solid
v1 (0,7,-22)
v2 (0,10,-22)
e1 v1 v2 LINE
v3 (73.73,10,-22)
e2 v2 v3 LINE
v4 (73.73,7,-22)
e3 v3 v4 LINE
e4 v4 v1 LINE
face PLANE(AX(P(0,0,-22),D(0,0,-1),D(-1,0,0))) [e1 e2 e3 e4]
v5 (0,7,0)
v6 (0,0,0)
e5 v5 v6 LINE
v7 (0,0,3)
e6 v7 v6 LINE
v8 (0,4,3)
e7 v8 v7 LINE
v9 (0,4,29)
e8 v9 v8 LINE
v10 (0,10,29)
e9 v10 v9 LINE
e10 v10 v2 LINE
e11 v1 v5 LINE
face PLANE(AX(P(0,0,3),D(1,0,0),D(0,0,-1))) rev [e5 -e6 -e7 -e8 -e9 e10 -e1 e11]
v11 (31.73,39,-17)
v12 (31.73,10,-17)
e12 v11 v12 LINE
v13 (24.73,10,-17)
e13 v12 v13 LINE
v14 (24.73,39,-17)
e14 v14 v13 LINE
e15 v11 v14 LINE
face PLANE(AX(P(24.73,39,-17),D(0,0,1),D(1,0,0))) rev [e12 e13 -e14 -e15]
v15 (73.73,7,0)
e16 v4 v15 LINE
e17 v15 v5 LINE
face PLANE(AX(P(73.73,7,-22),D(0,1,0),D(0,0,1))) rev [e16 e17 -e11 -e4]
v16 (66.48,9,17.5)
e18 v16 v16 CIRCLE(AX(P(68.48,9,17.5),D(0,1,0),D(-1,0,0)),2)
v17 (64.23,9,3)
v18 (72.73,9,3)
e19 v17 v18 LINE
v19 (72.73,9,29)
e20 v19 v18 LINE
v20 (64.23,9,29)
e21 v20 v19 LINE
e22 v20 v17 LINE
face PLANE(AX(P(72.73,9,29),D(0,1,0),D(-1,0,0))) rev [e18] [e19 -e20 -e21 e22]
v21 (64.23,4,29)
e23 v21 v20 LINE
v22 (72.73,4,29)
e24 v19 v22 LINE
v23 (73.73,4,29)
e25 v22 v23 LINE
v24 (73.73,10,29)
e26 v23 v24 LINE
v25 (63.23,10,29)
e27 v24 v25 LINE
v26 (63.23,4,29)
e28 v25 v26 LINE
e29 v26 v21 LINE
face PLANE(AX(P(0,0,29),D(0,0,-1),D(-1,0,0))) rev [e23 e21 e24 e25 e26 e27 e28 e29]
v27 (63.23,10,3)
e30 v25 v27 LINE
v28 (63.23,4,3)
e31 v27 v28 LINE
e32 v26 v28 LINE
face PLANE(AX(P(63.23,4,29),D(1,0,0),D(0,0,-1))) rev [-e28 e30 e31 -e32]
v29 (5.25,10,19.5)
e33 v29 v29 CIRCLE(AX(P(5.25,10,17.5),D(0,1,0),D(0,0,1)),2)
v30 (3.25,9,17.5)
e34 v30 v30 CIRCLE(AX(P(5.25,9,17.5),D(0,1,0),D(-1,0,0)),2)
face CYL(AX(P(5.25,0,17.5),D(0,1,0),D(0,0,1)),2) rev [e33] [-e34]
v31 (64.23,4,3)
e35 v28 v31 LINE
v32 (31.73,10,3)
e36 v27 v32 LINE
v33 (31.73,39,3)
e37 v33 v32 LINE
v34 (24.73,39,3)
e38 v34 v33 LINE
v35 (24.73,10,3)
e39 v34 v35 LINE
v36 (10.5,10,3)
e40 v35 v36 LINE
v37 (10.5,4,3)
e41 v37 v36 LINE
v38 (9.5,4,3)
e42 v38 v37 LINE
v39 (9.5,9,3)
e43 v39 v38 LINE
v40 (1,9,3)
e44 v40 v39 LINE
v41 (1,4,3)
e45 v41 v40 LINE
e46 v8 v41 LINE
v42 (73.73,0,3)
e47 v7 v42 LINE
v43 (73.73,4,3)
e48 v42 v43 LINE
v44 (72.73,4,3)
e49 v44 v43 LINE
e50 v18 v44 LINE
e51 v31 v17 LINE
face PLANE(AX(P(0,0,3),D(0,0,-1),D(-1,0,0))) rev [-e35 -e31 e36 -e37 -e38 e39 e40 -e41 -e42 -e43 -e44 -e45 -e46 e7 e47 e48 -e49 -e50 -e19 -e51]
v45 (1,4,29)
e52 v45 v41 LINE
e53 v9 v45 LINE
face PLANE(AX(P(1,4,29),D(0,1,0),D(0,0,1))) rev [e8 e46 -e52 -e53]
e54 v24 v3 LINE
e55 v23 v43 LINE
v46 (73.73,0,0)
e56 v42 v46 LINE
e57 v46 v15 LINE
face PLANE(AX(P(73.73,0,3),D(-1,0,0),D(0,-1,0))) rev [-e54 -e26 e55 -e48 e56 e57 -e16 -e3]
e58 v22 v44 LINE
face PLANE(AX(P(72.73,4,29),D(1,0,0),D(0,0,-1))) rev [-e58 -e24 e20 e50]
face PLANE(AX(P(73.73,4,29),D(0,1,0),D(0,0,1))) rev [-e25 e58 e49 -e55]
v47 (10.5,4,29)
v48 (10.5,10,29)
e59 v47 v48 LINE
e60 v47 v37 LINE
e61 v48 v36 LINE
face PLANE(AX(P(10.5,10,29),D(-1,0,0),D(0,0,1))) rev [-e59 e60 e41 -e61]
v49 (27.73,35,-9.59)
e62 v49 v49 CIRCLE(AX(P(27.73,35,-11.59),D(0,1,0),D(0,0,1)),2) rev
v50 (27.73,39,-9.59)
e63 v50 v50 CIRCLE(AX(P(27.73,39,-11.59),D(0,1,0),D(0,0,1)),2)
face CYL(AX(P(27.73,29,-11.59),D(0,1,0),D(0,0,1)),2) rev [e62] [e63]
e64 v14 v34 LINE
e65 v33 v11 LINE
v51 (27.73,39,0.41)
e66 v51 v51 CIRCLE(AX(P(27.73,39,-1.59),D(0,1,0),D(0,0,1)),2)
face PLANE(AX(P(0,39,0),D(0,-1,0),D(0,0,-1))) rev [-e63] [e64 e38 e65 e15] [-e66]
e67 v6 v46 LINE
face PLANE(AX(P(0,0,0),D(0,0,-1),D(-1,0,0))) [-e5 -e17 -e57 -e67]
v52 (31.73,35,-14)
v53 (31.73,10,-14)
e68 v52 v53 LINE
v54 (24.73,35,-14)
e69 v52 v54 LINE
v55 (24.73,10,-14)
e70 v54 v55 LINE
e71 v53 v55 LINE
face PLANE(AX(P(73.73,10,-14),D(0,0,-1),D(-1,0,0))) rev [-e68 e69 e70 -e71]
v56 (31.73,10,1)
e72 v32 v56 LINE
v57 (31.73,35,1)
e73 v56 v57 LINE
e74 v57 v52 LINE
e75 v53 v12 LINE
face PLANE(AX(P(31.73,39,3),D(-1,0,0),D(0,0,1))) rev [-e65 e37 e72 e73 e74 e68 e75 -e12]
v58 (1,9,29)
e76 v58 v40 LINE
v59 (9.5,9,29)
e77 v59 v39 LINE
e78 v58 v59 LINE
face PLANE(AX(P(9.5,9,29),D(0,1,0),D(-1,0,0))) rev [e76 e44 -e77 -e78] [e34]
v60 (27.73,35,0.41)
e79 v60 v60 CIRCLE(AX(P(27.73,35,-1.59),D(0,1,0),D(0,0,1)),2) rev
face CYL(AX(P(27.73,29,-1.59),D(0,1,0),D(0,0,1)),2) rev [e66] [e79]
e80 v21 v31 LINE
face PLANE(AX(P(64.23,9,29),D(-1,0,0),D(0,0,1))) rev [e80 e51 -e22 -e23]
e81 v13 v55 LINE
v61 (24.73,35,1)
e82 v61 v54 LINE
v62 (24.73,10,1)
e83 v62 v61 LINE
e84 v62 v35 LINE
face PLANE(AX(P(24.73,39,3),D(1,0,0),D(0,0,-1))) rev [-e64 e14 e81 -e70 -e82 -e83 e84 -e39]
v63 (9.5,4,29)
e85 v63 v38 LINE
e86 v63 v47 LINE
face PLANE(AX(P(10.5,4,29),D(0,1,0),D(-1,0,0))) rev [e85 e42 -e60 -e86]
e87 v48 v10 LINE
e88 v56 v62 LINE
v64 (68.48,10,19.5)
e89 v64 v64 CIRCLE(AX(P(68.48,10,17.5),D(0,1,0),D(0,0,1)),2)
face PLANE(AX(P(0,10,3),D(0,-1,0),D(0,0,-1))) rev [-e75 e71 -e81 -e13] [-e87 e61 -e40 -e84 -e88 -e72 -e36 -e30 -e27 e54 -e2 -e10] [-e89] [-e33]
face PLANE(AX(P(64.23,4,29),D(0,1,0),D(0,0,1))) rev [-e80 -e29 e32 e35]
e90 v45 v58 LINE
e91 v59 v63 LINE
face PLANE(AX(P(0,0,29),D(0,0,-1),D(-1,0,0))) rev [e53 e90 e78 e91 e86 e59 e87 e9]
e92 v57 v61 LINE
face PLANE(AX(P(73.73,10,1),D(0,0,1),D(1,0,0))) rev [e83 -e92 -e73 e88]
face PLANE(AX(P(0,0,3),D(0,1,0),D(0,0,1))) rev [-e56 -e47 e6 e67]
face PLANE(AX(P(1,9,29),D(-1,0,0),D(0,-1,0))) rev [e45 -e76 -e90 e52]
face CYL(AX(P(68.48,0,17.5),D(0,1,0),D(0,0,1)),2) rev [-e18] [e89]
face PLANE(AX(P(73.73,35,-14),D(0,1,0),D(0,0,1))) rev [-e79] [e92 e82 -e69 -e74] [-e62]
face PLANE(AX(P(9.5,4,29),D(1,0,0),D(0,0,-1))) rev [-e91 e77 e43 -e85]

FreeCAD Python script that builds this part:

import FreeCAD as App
import Part
import Sketcher
Q = App.Units.Quantity

doc = App.newDocument("Part")
body = doc.addObject("PartDesign::Body", "Body")

# Sketch on XY plane
sketch1 = body.newObject("Sketcher::SketchObject", "Sketch")
sketch1.AttachmentSupport = (doc.getObject("XY_Plane"), [""])
sketch1.MapMode = "FlatFace"
sketch1.addGeometry(Part.LineSegment(App.Vector(0, 10, 0), App.Vector(0, 0, 0)), False)
sketch1.addGeometry(Part.LineSegment(App.Vector(0, 0, 0), App.Vector(74, 0, 0)), False)
sketch1.addGeometry(Part.LineSegment(App.Vector(74, 0, 0), App.Vector(74, 10, 0)), False)
sketch1.addGeometry(Part.LineSegment(App.Vector(74, 10, 0), App.Vector(0, 10, 0)), False)
sketch1.addConstraint(Sketcher.Constraint("Coincident", 0, 2, 1, 1))
sketch1.addConstraint(Sketcher.Constraint("Coincident", 1, 2, 2, 1))
sketch1.addConstraint(Sketcher.Constraint("Coincident", 2, 2, 3, 1))
sketch1.addConstraint(Sketcher.Constraint("Coincident", 3, 2, 0, 1))
sketch1.addConstraint(Sketcher.Constraint("Vertical", 0))
sketch1.addConstraint(Sketcher.Constraint("Horizontal", 1))
sketch1.addConstraint(Sketcher.Constraint("Vertical", 2))
sketch1.addConstraint(Sketcher.Constraint("Horizontal", 3))
sketch1.addConstraint(Sketcher.Constraint("Coincident", 0, 2, -1, 1))
sketch1.addConstraint(Sketcher.Constraint("DistanceY", 0, 2, 0, 1, Q("10 mm")))
sketch1.addConstraint(Sketcher.Constraint("DistanceX", 1, 1, 1, 2, Q("73.73 mm")))
pad1 = body.newObject("PartDesign::Pad", "Pad")
pad1.Profile = sketch1
pad1.Length = 3

# Sketch on XY plane
sketch2 = body.newObject("Sketcher::SketchObject", "Sketch001")
sketch2.AttachmentSupport = (doc.getObject("XY_Plane"), [""])
sketch2.MapMode = "FlatFace"
sketch2.AttachmentOffset = App.Placement(App.Vector(0, 0, 3), App.Rotation())
sketch2.addGeometry(Part.LineSegment(App.Vector(0, 10, 0), App.Vector(0, 4, 0)), False)
sketch2.addGeometry(Part.LineSegment(App.Vector(0, 4, 0), App.Vector(1, 4, 0)), False)
sketch2.addGeometry(Part.LineSegment(App.Vector(1, 4, 0), App.Vector(1, 9, 0)), False)
sketch2.addGeometry(Part.LineSegment(App.Vector(1, 9, 0), App.Vector(9.5, 9, 0)), False)
sketch2.addGeometry(Part.LineSegment(App.Vector(9.5, 9, 0), App.Vector(9.5, 4, 0)), False)
sketch2.addGeometry(Part.LineSegment(App.Vector(9.5, 4, 0), App.Vector(10.5, 4, 0)), False)
sketch2.addGeometry(Part.LineSegment(App.Vector(10.5, 4, 0), App.Vector(10.5, 10, 0)), False)
sketch2.addGeometry(Part.LineSegment(App.Vector(10.5, 10, 0), App.Vector(0, 10, 0)), False)
sketch2.addConstraint(Sketcher.Constraint("Coincident", 0, 2, 1, 1))
sketch2.addConstraint(Sketcher.Constraint("Coincident", 1, 2, 2, 1))
sketch2.addConstraint(Sketcher.Constraint("Coincident", 2, 2, 3, 1))
sketch2.addConstraint(Sketcher.Constraint("Coincident", 3, 2, 4, 1))
sketch2.addConstraint(Sketcher.Constraint("Coincident", 4, 2, 5, 1))
sketch2.addConstraint(Sketcher.Constraint("Coincident", 5, 2, 6, 1))
sketch2.addConstraint(Sketcher.Constraint("Coincident", 6, 2, 7, 1))
sketch2.addConstraint(Sketcher.Constraint("Coincident", 7, 2, 0, 1))
sketch2.addConstraint(Sketcher.Constraint("Vertical", 0))
sketch2.addConstraint(Sketcher.Constraint("Horizontal", 1))
sketch2.addConstraint(Sketcher.Constraint("Vertical", 2))
sketch2.addConstraint(Sketcher.Constraint("Horizontal", 3))
sketch2.addConstraint(Sketcher.Constraint("Vertical", 4))
sketch2.addConstraint(Sketcher.Constraint("Horizontal", 5))
sketch2.addConstraint(Sketcher.Constraint("Vertical", 6))
sketch2.addConstraint(Sketcher.Constraint("Horizontal", 7))
sketch2.addConstraint(Sketcher.Constraint("PointOnObject", 0, 2, -2))
sketch2.addConstraint(Sketcher.Constraint("Horizontal", 1, 2, 4, 2))
sketch2.addConstraint(Sketcher.Constraint("Equal", 1, 5))
sketch2.addConstraint(Sketcher.Constraint("DistanceX", 1, 1, 1, 2, Q("1 mm")))
sketch2.addConstraint(Sketcher.Constraint("DistanceY", 0, 2, 0, 1, Q("6 mm")))
sketch2.addConstraint(Sketcher.Constraint("DistanceY", 2, 1, 2, 2, Q("5 mm")))
sketch2.addConstraint(Sketcher.Constraint("DistanceX", 3, 1, 3, 2, Q("8.5 mm")))
sketch2.addConstraint(Sketcher.Constraint("DistanceY", -1, 1, 0, 2, Q("4 mm")))
pad2 = body.newObject("PartDesign::Pad", "Pad001")
pad2.Profile = sketch2
pad2.Length = 26

# Sketch on XY plane
sketch3 = body.newObject("Sketcher::SketchObject", "Sketch002")
sketch3.AttachmentSupport = (doc.getObject("XY_Plane"), [""])
sketch3.MapMode = "FlatFace"
sketch3.AttachmentOffset = App.Placement(App.Vector(0, 0, 3), App.Rotation())
sketch3.addGeometry(Part.LineSegment(App.Vector(73.7, 4, 0), App.Vector(73.7, 10, 0)), False)
sketch3.addGeometry(Part.LineSegment(App.Vector(73.7, 10, 0), App.Vector(63.2, 10, 0)), False)
sketch3.addGeometry(Part.LineSegment(App.Vector(63.2, 10, 0), App.Vector(63.2, 4, 0)), False)
sketch3.addGeometry(Part.LineSegment(App.Vector(63.2, 4, 0), App.Vector(64.2, 4, 0)), False)
sketch3.addGeometry(Part.LineSegment(App.Vector(64.2, 4, 0), App.Vector(64.2, 9, 0)), False)
sketch3.addGeometry(Part.LineSegment(App.Vector(64.2, 9, 0), App.Vector(72.7, 9, 0)), False)
sketch3.addGeometry(Part.LineSegment(App.Vector(72.7, 9, 0), App.Vector(72.7, 4, 0)), False)
sketch3.addGeometry(Part.LineSegment(App.Vector(72.7, 4, 0), App.Vector(73.7, 4, 0)), False)
sketch3.addConstraint(Sketcher.Constraint("Coincident", 0, 2, 1, 1))
sketch3.addConstraint(Sketcher.Constraint("Coincident", 1, 2, 2, 1))
sketch3.addConstraint(Sketcher.Constraint("Coincident", 2, 2, 3, 1))
sketch3.addConstraint(Sketcher.Constraint("Coincident", 3, 2, 4, 1))
sketch3.addConstraint(Sketcher.Constraint("Coincident", 4, 2, 5, 1))
sketch3.addConstraint(Sketcher.Constraint("Coincident", 5, 2, 6, 1))
sketch3.addConstraint(Sketcher.Constraint("Coincident", 6, 2, 7, 1))
sketch3.addConstraint(Sketcher.Constraint("Coincident", 7, 2, 0, 1))
sketch3.addConstraint(Sketcher.Constraint("Vertical", 0))
sketch3.addConstraint(Sketcher.Constraint("Horizontal", 1))
sketch3.addConstraint(Sketcher.Constraint("Vertical", 2))
sketch3.addConstraint(Sketcher.Constraint("Horizontal", 3))
sketch3.addConstraint(Sketcher.Constraint("Vertical", 4))
sketch3.addConstraint(Sketcher.Constraint("Horizontal", 5))
sketch3.addConstraint(Sketcher.Constraint("Vertical", 6))
sketch3.addConstraint(Sketcher.Constraint("Horizontal", 7))
sketch3.addConstraint(Sketcher.Constraint("Horizontal", 3, 2, 6, 2))
sketch3.addConstraint(Sketcher.Constraint("Equal", 3, 7))
sketch3.addConstraint(Sketcher.Constraint("DistanceX", 3, 1, 3, 2, Q("1 mm")))
sketch3.addConstraint(Sketcher.Constraint("DistanceY", 0, 1, 0, 2, Q("6 mm")))
sketch3.addConstraint(Sketcher.Constraint("DistanceY", 4, 1, 4, 2, Q("5 mm")))
sketch3.addConstraint(Sketcher.Constraint("DistanceX", 1, 2, 1, 1, Q("10.5 mm")))
sketch3.addConstraint(Sketcher.Constraint("DistanceY", -1, 1, 0, 2, Q("10 mm")))
sketch3.addConstraint(Sketcher.Constraint("DistanceX", -1, 1, 0, 2, Q("73.73 mm")))
pad3 = body.newObject("PartDesign::Pad", "Pad002")
pad3.Profile = sketch3
pad3.Length = 26

# Sketch on XZ plane
sketch4 = body.newObject("Sketcher::SketchObject", "Sketch003")
sketch4.AttachmentSupport = (doc.getObject("XZ_Plane"), [""])
sketch4.MapMode = "FlatFace"
sketch4.AttachmentOffset = App.Placement(App.Vector(0, 0, -10), App.Rotation())
sketch4.addGeometry(Part.Circle(App.Vector(5.2, 17.5, 0), App.Vector(0, 0, 1), 2), False)
sketch4.addGeometry(Part.Circle(App.Vector(68.5, 17.5, 0), App.Vector(0, 0, 1), 2), False)
sketch4.addConstraint(Sketcher.Constraint("Equal", 0, 1))
sketch4.addConstraint(Sketcher.Constraint("Horizontal", 0, 3, 1, 3))
sketch4.addConstraint(Sketcher.Constraint("Diameter", 0, Q("4 mm")))
sketch4.addConstraint(Sketcher.Constraint("DistanceY", -1, 1, 0, 3, Q("17.5 mm")))
sketch4.addConstraint(Sketcher.Constraint("DistanceX", -1, 1, 0, 3, Q("5.25 mm")))
sketch4.addConstraint(Sketcher.Constraint("DistanceX", -1, 1, 1, 3, Q("68.48 mm")))
pocket1 = body.newObject("PartDesign::Pocket", "Pocket")
pocket1.Profile = sketch4
pocket1.Type = "ThroughAll"
pocket1.Reversed = True

# Sketch on XY plane
sketch5 = body.newObject("Sketcher::SketchObject", "Sketch004")
sketch5.AttachmentSupport = (doc.getObject("XY_Plane"), [""])
sketch5.MapMode = "FlatFace"
sketch5.addGeometry(Part.LineSegment(App.Vector(73.7, 10, 0), App.Vector(73.7, 7, 0)), False)
sketch5.addGeometry(Part.LineSegment(App.Vector(73.7, 7, 0), App.Vector(0, 7, 0)), False)
sketch5.addGeometry(Part.LineSegment(App.Vector(0, 7, 0), App.Vector(0, 10, 0)), False)
sketch5.addGeometry(Part.LineSegment(App.Vector(0, 10, 0), App.Vector(73.7, 10, 0)), False)
sketch5.addConstraint(Sketcher.Constraint("Coincident", 0, 2, 1, 1))
sketch5.addConstraint(Sketcher.Constraint("Coincident", 1, 2, 2, 1))
sketch5.addConstraint(Sketcher.Constraint("Coincident", 2, 2, 3, 1))
sketch5.addConstraint(Sketcher.Constraint("Coincident", 3, 2, 0, 1))
sketch5.addConstraint(Sketcher.Constraint("Vertical", 0))
sketch5.addConstraint(Sketcher.Constraint("Horizontal", 1))
sketch5.addConstraint(Sketcher.Constraint("Vertical", 2))
sketch5.addConstraint(Sketcher.Constraint("Horizontal", 3))
sketch5.addConstraint(Sketcher.Constraint("PointOnObject", 1, 2, -2))
sketch5.addConstraint(Sketcher.Constraint("DistanceY", 0, 2, 0, 1, Q("3 mm")))
sketch5.addConstraint(Sketcher.Constraint("DistanceY", -1, 1, 0, 2, Q("7 mm")))
sketch5.addConstraint(Sketcher.Constraint("DistanceX", 1, 2, 1, 1, Q("73.73 mm")))
pad4 = body.newObject("PartDesign::Pad", "Pad003")
pad4.Profile = sketch5
pad4.Length = 22
pad4.Reversed = True

# Sketch on XZ plane
sketch6 = body.newObject("Sketcher::SketchObject", "Sketch005")
sketch6.AttachmentSupport = (doc.getObject("XZ_Plane"), [""])
sketch6.MapMode = "FlatFace"
sketch6.AttachmentOffset = App.Placement(App.Vector(0, 0, -10), App.Rotation())
sketch6.addGeometry(Part.LineSegment(App.Vector(25, -17, 0), App.Vector(25, 3, 0)), False)
sketch6.addGeometry(Part.LineSegment(App.Vector(25, 3, 0), App.Vector(32, 3, 0)), False)
sketch6.addGeometry(Part.LineSegment(App.Vector(32, 3, 0), App.Vector(32, -17, 0)), False)
sketch6.addGeometry(Part.LineSegment(App.Vector(32, -17, 0), App.Vector(25, -17, 0)), False)
sketch6.addConstraint(Sketcher.Constraint("Coincident", 0, 2, 1, 1))
sketch6.addConstraint(Sketcher.Constraint("Coincident", 1, 2, 2, 1))
sketch6.addConstraint(Sketcher.Constraint("Coincident", 2, 2, 3, 1))
sketch6.addConstraint(Sketcher.Constraint("Coincident", 3, 2, 0, 1))
sketch6.addConstraint(Sketcher.Constraint("Vertical", 0))
sketch6.addConstraint(Sketcher.Constraint("Horizontal", 1))
sketch6.addConstraint(Sketcher.Constraint("Vertical", 2))
sketch6.addConstraint(Sketcher.Constraint("Horizontal", 3))
sketch6.addConstraint(Sketcher.Constraint("DistanceX", 1, 1, 1, 2, Q("7 mm")))
sketch6.addConstraint(Sketcher.Constraint("DistanceY", 0, 1, 0, 2, Q("20 mm")))
sketch6.addConstraint(Sketcher.Constraint("DistanceY", -1, 1, 0, 2, Q("3 mm")))
sketch6.addConstraint(Sketcher.Constraint("DistanceX", -1, 1, 0, 2, Q("24.73 mm")))
pad5 = body.newObject("PartDesign::Pad", "Pad004")
pad5.Profile = sketch6
pad5.Length = 29
pad5.Reversed = True

# Sketch on XZ plane
sketch7 = body.newObject("Sketcher::SketchObject", "Sketch006")
sketch7.AttachmentSupport = (doc.getObject("XZ_Plane"), [""])
sketch7.MapMode = "FlatFace"
sketch7.AttachmentOffset = App.Placement(App.Vector(0, 0, -39), App.Rotation())
sketch7.addGeometry(Part.Circle(App.Vector(27.7, -11.6, 0), App.Vector(0, 0, 1), 2), False)
sketch7.addGeometry(Part.Circle(App.Vector(27.7, -1.6, 0), App.Vector(0, 0, 1), 2), False)
sketch7.addConstraint(Sketcher.Constraint("Equal", 0, 1))
sketch7.addConstraint(Sketcher.Constraint("Vertical", 0, 3, 1, 3))
sketch7.addConstraint(Sketcher.Constraint("Diameter", 0, Q("4 mm")))
sketch7.addConstraint(Sketcher.Constraint("DistanceY", 0, 3, 1, 3, Q("10 mm")))
sketch7.addConstraint(Sketcher.Constraint("DistanceX", -1, 1, 0, 3, Q("27.73 mm")))
sketch7.addConstraint(Sketcher.Constraint("DistanceY", 0, 3, -1, 1, Q("11.59 mm")))
pocket2 = body.newObject("PartDesign::Pocket", "Pocket001")
pocket2.Profile = sketch7
pocket2.Length = 10
pocket2.Reversed = True

# Sketch on YZ plane
sketch8 = body.newObject("Sketcher::SketchObject", "Sketch007")
sketch8.AttachmentSupport = (doc.getObject("YZ_Plane"), [""])
sketch8.MapMode = "FlatFace"
sketch8.AttachmentOffset = App.Placement(App.Vector(0, 0, 24.73), App.Rotation())
sketch8.addGeometry(Part.LineSegment(App.Vector(35, -14, 0), App.Vector(10, -14, 0)), False)
sketch8.addGeometry(Part.LineSegment(App.Vector(10, -14, 0), App.Vector(10, 1, 0)), False)
sketch8.addGeometry(Part.LineSegment(App.Vector(10, 1, 0), App.Vector(35, 1, 0)), False)
sketch8.addGeometry(Part.LineSegment(App.Vector(35, 1, 0), App.Vector(35, -14, 0)), False)
sketch8.addConstraint(Sketcher.Constraint("Coincident", 0, 2, 1, 1))
sketch8.addConstraint(Sketcher.Constraint("Coincident", 1, 2, 2, 1))
sketch8.addConstraint(Sketcher.Constraint("Coincident", 2, 2, 3, 1))
sketch8.addConstraint(Sketcher.Constraint("Coincident", 3, 2, 0, 1))
sketch8.addConstraint(Sketcher.Constraint("Horizontal", 0))
sketch8.addConstraint(Sketcher.Constraint("Vertical", 1))
sketch8.addConstraint(Sketcher.Constraint("Horizontal", 2))
sketch8.addConstraint(Sketcher.Constraint("Vertical", 3))
sketch8.addConstraint(Sketcher.Constraint("DistanceX", 0, 2, 0, 1, Q("25 mm")))
sketch8.addConstraint(Sketcher.Constraint("DistanceY", 1, 1, 1, 2, Q("15 mm")))
sketch8.addConstraint(Sketcher.Constraint("DistanceX", -1, 1, 0, 2, Q("10 mm")))
sketch8.addConstraint(Sketcher.Constraint("DistanceY", 0, 2, -1, 1, Q("14 mm")))
pocket3 = body.newObject("PartDesign::Pocket", "Pocket002")
pocket3.Profile = sketch8
pocket3.Type = "ThroughAll"
pocket3.Reversed = True

doc.recompute()
